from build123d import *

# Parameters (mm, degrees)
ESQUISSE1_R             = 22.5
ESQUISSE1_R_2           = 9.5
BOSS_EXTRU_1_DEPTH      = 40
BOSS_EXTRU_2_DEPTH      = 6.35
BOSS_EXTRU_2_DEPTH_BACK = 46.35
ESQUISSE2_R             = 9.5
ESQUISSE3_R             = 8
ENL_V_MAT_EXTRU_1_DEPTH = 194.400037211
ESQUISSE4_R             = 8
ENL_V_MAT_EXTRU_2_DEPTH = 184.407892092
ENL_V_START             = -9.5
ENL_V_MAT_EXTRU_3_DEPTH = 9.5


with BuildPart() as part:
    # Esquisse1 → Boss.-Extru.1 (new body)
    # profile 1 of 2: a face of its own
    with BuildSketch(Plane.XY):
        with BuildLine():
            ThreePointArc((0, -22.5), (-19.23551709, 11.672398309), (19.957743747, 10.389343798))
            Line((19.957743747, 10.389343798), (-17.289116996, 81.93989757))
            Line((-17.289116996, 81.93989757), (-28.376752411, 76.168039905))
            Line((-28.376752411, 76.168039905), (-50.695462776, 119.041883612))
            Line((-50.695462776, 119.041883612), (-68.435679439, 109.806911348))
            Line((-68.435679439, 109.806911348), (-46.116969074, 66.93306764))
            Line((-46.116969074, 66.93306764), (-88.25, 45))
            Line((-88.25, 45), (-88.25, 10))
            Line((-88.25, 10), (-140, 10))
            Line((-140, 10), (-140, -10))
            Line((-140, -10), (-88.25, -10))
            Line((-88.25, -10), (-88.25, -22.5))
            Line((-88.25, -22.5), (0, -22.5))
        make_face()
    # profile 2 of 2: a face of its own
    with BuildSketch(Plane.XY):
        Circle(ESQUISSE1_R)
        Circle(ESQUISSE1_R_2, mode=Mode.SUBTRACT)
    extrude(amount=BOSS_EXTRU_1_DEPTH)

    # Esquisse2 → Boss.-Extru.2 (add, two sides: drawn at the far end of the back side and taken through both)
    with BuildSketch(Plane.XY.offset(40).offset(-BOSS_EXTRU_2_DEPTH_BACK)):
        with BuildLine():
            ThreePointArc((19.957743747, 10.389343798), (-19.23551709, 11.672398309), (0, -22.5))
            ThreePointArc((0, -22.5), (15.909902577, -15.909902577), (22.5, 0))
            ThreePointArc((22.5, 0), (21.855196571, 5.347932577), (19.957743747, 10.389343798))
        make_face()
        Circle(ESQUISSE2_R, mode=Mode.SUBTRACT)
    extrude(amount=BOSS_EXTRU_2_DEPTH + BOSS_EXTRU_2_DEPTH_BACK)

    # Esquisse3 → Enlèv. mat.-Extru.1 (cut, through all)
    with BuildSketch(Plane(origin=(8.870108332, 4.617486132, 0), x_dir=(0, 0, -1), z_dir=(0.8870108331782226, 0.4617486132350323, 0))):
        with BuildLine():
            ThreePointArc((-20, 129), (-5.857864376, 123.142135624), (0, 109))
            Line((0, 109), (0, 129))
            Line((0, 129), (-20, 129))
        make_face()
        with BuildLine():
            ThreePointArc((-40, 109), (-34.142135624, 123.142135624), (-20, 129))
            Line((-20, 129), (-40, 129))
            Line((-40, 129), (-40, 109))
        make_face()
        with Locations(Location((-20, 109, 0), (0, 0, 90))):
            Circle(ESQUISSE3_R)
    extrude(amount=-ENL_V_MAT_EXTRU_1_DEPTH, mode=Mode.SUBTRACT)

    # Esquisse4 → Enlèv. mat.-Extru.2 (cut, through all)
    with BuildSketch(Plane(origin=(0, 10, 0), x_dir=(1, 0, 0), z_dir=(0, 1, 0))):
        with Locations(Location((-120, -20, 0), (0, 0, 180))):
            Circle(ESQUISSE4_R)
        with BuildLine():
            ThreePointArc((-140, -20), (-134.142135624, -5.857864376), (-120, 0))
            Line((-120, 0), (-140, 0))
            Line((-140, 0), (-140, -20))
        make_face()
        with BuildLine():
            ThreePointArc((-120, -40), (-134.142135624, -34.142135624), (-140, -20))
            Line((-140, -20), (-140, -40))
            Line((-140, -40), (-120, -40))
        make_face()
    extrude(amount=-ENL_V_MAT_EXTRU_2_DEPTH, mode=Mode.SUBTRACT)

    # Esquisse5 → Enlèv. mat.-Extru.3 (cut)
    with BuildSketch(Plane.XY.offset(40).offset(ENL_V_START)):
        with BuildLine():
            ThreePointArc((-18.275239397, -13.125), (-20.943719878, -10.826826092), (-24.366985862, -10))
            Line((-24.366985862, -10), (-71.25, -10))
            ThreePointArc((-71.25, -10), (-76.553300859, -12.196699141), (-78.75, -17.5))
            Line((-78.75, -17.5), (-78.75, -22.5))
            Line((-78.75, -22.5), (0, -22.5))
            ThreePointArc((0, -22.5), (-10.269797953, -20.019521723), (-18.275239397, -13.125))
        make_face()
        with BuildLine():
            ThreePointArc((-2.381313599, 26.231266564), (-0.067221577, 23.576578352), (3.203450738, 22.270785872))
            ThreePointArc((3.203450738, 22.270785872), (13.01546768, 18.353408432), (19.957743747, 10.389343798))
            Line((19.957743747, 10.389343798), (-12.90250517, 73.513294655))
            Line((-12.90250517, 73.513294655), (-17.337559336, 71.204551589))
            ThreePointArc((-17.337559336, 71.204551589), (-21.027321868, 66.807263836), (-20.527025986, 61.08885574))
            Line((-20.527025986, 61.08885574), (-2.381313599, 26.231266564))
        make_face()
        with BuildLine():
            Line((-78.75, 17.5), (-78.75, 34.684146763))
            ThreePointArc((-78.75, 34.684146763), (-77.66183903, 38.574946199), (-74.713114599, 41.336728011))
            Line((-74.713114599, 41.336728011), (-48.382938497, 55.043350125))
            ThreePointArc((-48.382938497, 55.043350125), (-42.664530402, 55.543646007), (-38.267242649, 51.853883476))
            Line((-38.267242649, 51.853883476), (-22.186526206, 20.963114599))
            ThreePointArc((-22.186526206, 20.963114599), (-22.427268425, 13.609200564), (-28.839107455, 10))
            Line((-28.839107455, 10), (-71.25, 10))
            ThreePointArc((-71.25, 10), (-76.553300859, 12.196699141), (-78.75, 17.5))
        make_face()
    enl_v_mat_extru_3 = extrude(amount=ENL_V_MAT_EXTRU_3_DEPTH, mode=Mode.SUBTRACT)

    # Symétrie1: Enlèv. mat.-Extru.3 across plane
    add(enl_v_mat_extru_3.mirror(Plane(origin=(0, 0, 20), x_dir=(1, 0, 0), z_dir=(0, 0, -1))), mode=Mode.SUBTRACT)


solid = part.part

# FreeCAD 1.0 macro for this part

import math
import FreeCAD as App
import Part
import Sketcher
from FreeCAD import Vector
Q = App.Units.Quantity

doc = App.newDocument("Part")
body = doc.addObject("PartDesign::Body", "Body")

# Sketch on XY plane
sketch1 = doc.addObject("Sketcher::SketchObject", "Sketch")
body.addObject(sketch1)
sketch1.AttachmentSupport = (doc.XY_Plane, [""])
sketch1.MapMode = "FlatFace"
sketch1.addGeometry([
    Part.LineSegment(Vector(20, 10, 0), Vector(-17, 82, 0)),  # 0
    Part.LineSegment(Vector(-17, 82, 0), Vector(-28, 76, 0)),  # 1
    Part.LineSegment(Vector(-28, 76, 0), Vector(-51, 119, 0)),  # 2
    Part.LineSegment(Vector(-51, 119, 0), Vector(-68, 110, 0)),  # 3
    Part.LineSegment(Vector(-68, 110, 0), Vector(-46, 67, 0)),  # 4
    Part.LineSegment(Vector(-46, 67, 0), Vector(-88, 45, 0)),  # 5
    Part.LineSegment(Vector(-88, 45, 0), Vector(-88, 10, 0)),  # 6
    Part.LineSegment(Vector(-88, 10, 0), Vector(-140, 10, 0)),  # 7
    Part.LineSegment(Vector(-140, 10, 0), Vector(-140, -10, 0)),  # 8
    Part.LineSegment(Vector(-140, -10, 0), Vector(-88, -10, 0)),  # 9
    Part.LineSegment(Vector(-88, -10, 0), Vector(-88, -22, 0)),  # 10
    Part.LineSegment(Vector(-88, -22, 0), Vector(0, -22, 0)),  # 11
    Part.ArcOfCircle(Part.Circle(Vector(0, 0, 0), Vector(0, 0, 1), 22), math.radians(-90), math.radians(27)),  # 12
    Part.Circle(Vector(0, 0, 0), Vector(0, 0, 1), 10),  # 13
], False)
sketch1.addConstraint([
    Sketcher.Constraint("Coincident", 0, 2, 1, 1),
    Sketcher.Constraint("Coincident", 1, 2, 2, 1),
    Sketcher.Constraint("Coincident", 2, 2, 3, 1),
    Sketcher.Constraint("Coincident", 3, 2, 4, 1),
    Sketcher.Constraint("Coincident", 4, 2, 5, 1),
    Sketcher.Constraint("Coincident", 5, 2, 6, 1),
    Sketcher.Constraint("Coincident", 6, 2, 7, 1),
    Sketcher.Constraint("Coincident", 7, 2, 8, 1),
    Sketcher.Constraint("Coincident", 8, 2, 9, 1),
    Sketcher.Constraint("Coincident", 9, 2, 10, 1),
    Sketcher.Constraint("Coincident", 10, 2, 11, 1),
    Sketcher.Constraint("Tangent", 11, 2, 12, 1),
    Sketcher.Constraint("Tangent", 12, 2, 0, 1),
    Sketcher.Constraint("Vertical", 6),
    Sketcher.Constraint("Horizontal", 7),
    Sketcher.Constraint("Vertical", 8),
    Sketcher.Constraint("Horizontal", 9),
    Sketcher.Constraint("Vertical", 10),
    Sketcher.Constraint("Horizontal", 11),
    Sketcher.Constraint("Coincident", 12, 3, -1, 1),
    Sketcher.Constraint("Coincident", 13, 3, -1, 1),
    Sketcher.Constraint("Symmetric", 6, 2, 9, 2, -1),
    Sketcher.Constraint("Perpendicular", 0, 1),
    Sketcher.Constraint("Perpendicular", 1, 2),
    Sketcher.Constraint("Perpendicular", 2, 3),
    Sketcher.Constraint("Perpendicular", 3, 4),
    Sketcher.Constraint("Perpendicular", 4, 5),
    Sketcher.Constraint("Equal", 2, 4),
    Sketcher.Constraint("Diameter", 13, 19.0),
    Sketcher.Constraint("Radius", 12, 22.5),
    Sketcher.Constraint("DistanceY", 6, 2, 6, 1, 35.0),
    Sketcher.Constraint("DistanceY", 8, 2, 8, 1, 20.0),
    Sketcher.Constraint("Distance", 3, 20.0),
    Sketcher.Constraint("DistanceX", 7, 2, -1, 1, 140.0),
    Sketcher.Constraint("Angle", 0, Q("117.5 deg")),
    Sketcher.Constraint("Distance", 1, 12.5),
    Sketcher.Constraint("DistanceX", 7, 2, 7, 1, 51.75),
    Sketcher.Constraint("DistanceX", 3, 2, -1, 1, 68.435679),
])
pad1 = doc.addObject("PartDesign::Pad", "Pad")
body.addObject(pad1)
pad1.Profile = sketch1
pad1.Length = 40

# Sketch on XY plane
sketch2 = doc.addObject("Sketcher::SketchObject", "Sketch001")
body.addObject(sketch2)
sketch2.AttachmentSupport = (doc.XY_Plane, [""])
sketch2.MapMode = "FlatFace"
sketch2.AttachmentOffset = App.Placement(Vector(0, 0, 40), App.Rotation())
sketch2.addGeometry([
    Part.ArcOfCircle(Part.Circle(Vector(0, 0, 0), Vector(0, 0, 1), 22), math.radians(27), math.radians(270)),
    Part.ArcOfCircle(Part.Circle(Vector(0, 0, 0), Vector(0, 0, 1), 22), math.radians(-90), math.radians(0)),
    Part.ArcOfCircle(Part.Circle(Vector(0, 0, 0), Vector(0, 0, 1), 23), math.radians(0), math.radians(27)),
    Part.Circle(Vector(0, 0, 0), Vector(0, 0, 1), 10),
], False)
sketch2.addConstraint([
    Sketcher.Constraint("Tangent", 0, 2, 1, 1),
    Sketcher.Constraint("Tangent", 1, 2, 2, 1),
    Sketcher.Constraint("Tangent", 2, 2, 0, 1),
    Sketcher.Constraint("Coincident", 0, 3, -1, 1),
    Sketcher.Constraint("Coincident", 3, 3, -1, 1),
    Sketcher.Constraint("PointOnObject", 0, 2, -2),
    Sketcher.Constraint("PointOnObject", 1, 2, -1),
    Sketcher.Constraint("Diameter", 3, 19.0),
    Sketcher.Constraint("Radius", 0, 22.5),
    Sketcher.Constraint("DistanceX", -1, 1, 2, 2, 19.957744),
])
pad2 = doc.addObject("PartDesign::Pad", "Pad001")
body.addObject(pad2)
pad2.Profile = sketch2
pad2.Type = "TwoLengths"
pad2.Length = 6.35
pad2.Length2 = 46.35

# Sketch on an angled plane
sketch3 = doc.addObject("Sketcher::SketchObject", "Sketch002")
body.addObject(sketch3)
sketch3.Placement = App.Placement(Vector(8.870108, 4.617486, 0), App.Rotation(Vector(0, 0, -1), Vector(-0.461748613, 0.887010833, 0), Vector(0.887010833, 0.461748613, 0), "ZXY"))
sketch3.addGeometry([
    Part.ArcOfCircle(Part.Circle(Vector(-20, 109, 0), Vector(0, 0, 1), 20), math.radians(0), math.radians(90)),  # 0
    Part.LineSegment(Vector(0, 109, 0), Vector(0, 129, 0)),  # 1
    Part.LineSegment(Vector(0, 129, 0), Vector(-20, 129, 0)),  # 2
    Part.ArcOfCircle(Part.Circle(Vector(-20, 109, 0), Vector(0, 0, 1), 20), math.radians(90), math.radians(180)),  # 3
    Part.LineSegment(Vector(-20, 129, 0), Vector(-40, 129, 0)),  # 4
    Part.LineSegment(Vector(-40, 129, 0), Vector(-40, 109, 0)),  # 5
    Part.Circle(Vector(-20, 109, 0), Vector(0, 0, 1), 8),  # 6
], False)
sketch3.addConstraint([
    Sketcher.Constraint("Tangent", 0, 1, 1, 1),
    Sketcher.Constraint("Coincident", 1, 2, 2, 1),
    Sketcher.Constraint("Tangent", 2, 2, 0, 2),
    Sketcher.Constraint("Tangent", 3, 1, 4, 1),
    Sketcher.Constraint("Coincident", 4, 2, 5, 1),
    Sketcher.Constraint("Tangent", 5, 2, 3, 2),
    Sketcher.Constraint("Vertical", 1),
    Sketcher.Constraint("Horizontal", 2),
    Sketcher.Constraint("Horizontal", 4),
    Sketcher.Constraint("Vertical", 5),
    Sketcher.Constraint("Coincident", 3, 3, 0, 3),
    Sketcher.Constraint("Coincident", 6, 3, 0, 3),
    Sketcher.Constraint("Equal", 0, 3),
    Sketcher.Constraint("PointOnObject", 0, 1, -2),
    Sketcher.Constraint("Diameter", 6, 16.0),
    Sketcher.Constraint("Radius", 0, 20.0),
    Sketcher.Constraint("DistanceY", -1, 1, 0, 3, 109.0),
])
pocket1 = doc.addObject("PartDesign::Pocket", "Pocket")
body.addObject(pocket1)
pocket1.Profile = sketch3
pocket1.Type = "ThroughAll"

# Sketch on XZ plane
sketch4 = doc.addObject("Sketcher::SketchObject", "Sketch003")
body.addObject(sketch4)
sketch4.AttachmentSupport = (doc.XZ_Plane, [""])
sketch4.MapMode = "FlatFace"
sketch4.AttachmentOffset = App.Placement(Vector(0, 0, -10), App.Rotation())
sketch4.addGeometry([
    Part.Circle(Vector(-120, 20, 0), Vector(0, 0, 1), 8),  # 0
    Part.ArcOfCircle(Part.Circle(Vector(-120, 20, 0), Vector(0, 0, 1), 20), math.radians(180), math.radians(270)),  # 1
    Part.LineSegment(Vector(-120, 0, 0), Vector(-140, 0, 0)),  # 2
    Part.LineSegment(Vector(-140, 0, 0), Vector(-140, 20, 0)),  # 3
    Part.ArcOfCircle(Part.Circle(Vector(-120, 20, 0), Vector(0, 0, 1), 20), math.radians(90), math.radians(180)),  # 4
    Part.LineSegment(Vector(-140, 20, 0), Vector(-140, 40, 0)),  # 5
    Part.LineSegment(Vector(-140, 40, 0), Vector(-120, 40, 0)),  # 6
], False)
sketch4.addConstraint([
    Sketcher.Constraint("Tangent", 1, 2, 2, 1),
    Sketcher.Constraint("Coincident", 2, 2, 3, 1),
    Sketcher.Constraint("Tangent", 3, 2, 1, 1),
    Sketcher.Constraint("Tangent", 4, 2, 5, 1),
    Sketcher.Constraint("Coincident", 5, 2, 6, 1),
    Sketcher.Constraint("Tangent", 6, 2, 4, 1),
    Sketcher.Constraint("Horizontal", 2),
    Sketcher.Constraint("Vertical", 3),
    Sketcher.Constraint("Vertical", 5),
    Sketcher.Constraint("Horizontal", 6),
    Sketcher.Constraint("Coincident", 1, 3, 0, 3),
    Sketcher.Constraint("Coincident", 4, 3, 0, 3),
    Sketcher.Constraint("Equal", 1, 4),
    Sketcher.Constraint("PointOnObject", 1, 2, -1),
    Sketcher.Constraint("Diameter", 0, 16.0),
    Sketcher.Constraint("Radius", 1, 20.0),
    Sketcher.Constraint("DistanceX", 0, 3, -1, 1, 120.0),
])
pocket2 = doc.addObject("PartDesign::Pocket", "Pocket001")
body.addObject(pocket2)
pocket2.Profile = sketch4
pocket2.Type = "ThroughAll"
pocket2.Reversed = True

# Sketch on XY plane
sketch5 = doc.addObject("Sketcher::SketchObject", "Sketch004")
body.addObject(sketch5)
sketch5.AttachmentSupport = (doc.XY_Plane, [""])
sketch5.MapMode = "FlatFace"
sketch5.AttachmentOffset = App.Placement(Vector(0, 0, 30.5), App.Rotation())
sketch5.addGeometry([
    Part.ArcOfCircle(Part.Circle(Vector(-24, -17, 0), Vector(0, 0, 1), 7), math.radians(36), math.radians(90)),  # 0
    Part.LineSegment(Vector(-24, -10, 0), Vector(-71, -10, 0)),  # 1
    Part.ArcOfCircle(Part.Circle(Vector(-71, -18, 0), Vector(0, 0, 1), 8), math.radians(90), math.radians(180)),  # 2
    Part.LineSegment(Vector(-79, -18, 0), Vector(-79, -22, 0)),  # 3
    Part.LineSegment(Vector(-79, -22, 0), Vector(0, -22, 0)),  # 4
    Part.ArcOfCircle(Part.Circle(Vector(0, 0, 0), Vector(0, 0, 1), 22), math.radians(-144), math.radians(-90)),  # 5
    Part.ArcOfCircle(Part.Circle(Vector(4, 30, 0), Vector(0, 0, 1), 7), math.radians(-153), math.radians(-98)),  # 6
    Part.ArcOfCircle(Part.Circle(Vector(0, 0, 0), Vector(0, 0, 1), 23), math.radians(28), math.radians(82)),  # 7
    Part.LineSegment(Vector(20, 10, 0), Vector(-13, 74, 0)),  # 8
    Part.LineSegment(Vector(-13, 74, 0), Vector(-17, 71, 0)),  # 9
    Part.ArcOfCircle(Part.Circle(Vector(-14, 65, 0), Vector(0, 0, 1), 8), math.radians(117), math.radians(208)),  # 10
    Part.LineSegment(Vector(-21, 61, 0), Vector(-2, 26, 0)),  # 11
    Part.LineSegment(Vector(-79, 35, 0), Vector(-79, 18, 0)),  # 12
    Part.ArcOfCircle(Part.Circle(Vector(-71, 18, 0), Vector(0, 0, 1), 8), math.radians(180), math.radians(270)),  # 13
    Part.LineSegment(Vector(-71, 10, 0), Vector(-29, 10, 0)),  # 14
    Part.ArcOfCircle(Part.Circle(Vector(-29, 18, 0), Vector(0, 0, 1), 8), math.radians(-90), math.radians(27)),  # 15
    Part.LineSegment(Vector(-22, 21, 0), Vector(-38, 52, 0)),  # 16
    Part.ArcOfCircle(Part.Circle(Vector(-45, 48, 0), Vector(0, 0, 1), 8), math.radians(28), math.radians(117)),  # 17
    Part.LineSegment(Vector(-48, 55, 0), Vector(-75, 41, 0)),  # 18
    Part.ArcOfCircle(Part.Circle(Vector(-71, 35, 0), Vector(0, 0, 1), 7), math.radians(117), math.radians(180)),  # 19
], False)
sketch5.addConstraint([
    Sketcher.Constraint("Tangent", 0, 2, 1, 1),
    Sketcher.Constraint("Tangent", 1, 2, 2, 1),
    Sketcher.Constraint("Tangent", 2, 2, 3, 1),
    Sketcher.Constraint("Coincident", 3, 2, 4, 1),
    Sketcher.Constraint("Tangent", 4, 2, 5, 2),
    Sketcher.Constraint("Tangent", 5, 1, 0, 1),
    Sketcher.Constraint("Tangent", 6, 2, 7, 2),
    Sketcher.Constraint("Tangent", 7, 1, 8, 1),
    Sketcher.Constraint("Coincident", 8, 2, 9, 1),
    Sketcher.Constraint("Tangent", 9, 2, 10, 1),
    Sketcher.Constraint("Tangent", 10, 2, 11, 1),
    Sketcher.Constraint("Tangent", 11, 2, 6, 1),
    Sketcher.Constraint("Tangent", 12, 2, 13, 1),
    Sketcher.Constraint("Tangent", 13, 2, 14, 1),
    Sketcher.Constraint("Tangent", 14, 2, 15, 1),
    Sketcher.Constraint("Tangent", 15, 2, 16, 1),
    Sketcher.Constraint("Tangent", 16, 2, 17, 1),
    Sketcher.Constraint("Tangent", 17, 2, 18, 1),
    Sketcher.Constraint("Tangent", 18, 2, 19, 1),
    Sketcher.Constraint("Tangent", 19, 2, 12, 1),
    Sketcher.Constraint("Horizontal", 1),
    Sketcher.Constraint("Vertical", 3),
    Sketcher.Constraint("Horizontal", 4),
    Sketcher.Constraint("Vertical", 12),
    Sketcher.Constraint("Horizontal", 14),
    Sketcher.Constraint("Coincident", 5, 3, -1, 1),
    Sketcher.Constraint("Coincident", 7, 3, -1, 1),
    Sketcher.Constraint("Equal", 0, 2),
    Sketcher.Constraint("Equal", 2, 6),
    Sketcher.Constraint("Equal", 5, 7),
    Sketcher.Constraint("Equal", 6, 10),
    Sketcher.Constraint("Equal", 10, 13),
    Sketcher.Constraint("Equal", 13, 15),
    Sketcher.Constraint("Equal", 15, 17),
    Sketcher.Constraint("Equal", 17, 19),
    Sketcher.Constraint("Symmetric", 2, 3, 13, 3, -1),
    Sketcher.Constraint("Perpendicular", 8, 9),
    Sketcher.Constraint("Perpendicular", 9, 11),
    Sketcher.Constraint("Parallel", 11, 16),
    Sketcher.Constraint("Perpendicular", 16, 18),
    Sketcher.Constraint("Radius", 0, 7.5),
    Sketcher.Constraint("Radius", 5, 22.5),
    Sketcher.Constraint("DistanceY", 3, 2, 3, 1, 5.0),
    Sketcher.Constraint("Distance", 9, 5.0),
    Sketcher.Constraint("Angle", 8, Q("117.5 deg")),
    Sketcher.Constraint("DistanceX", 4, 1, 4, 2, 78.75),
    Sketcher.Constraint("DistanceY", 17, 3, 10, 3, 16.161201),
    Sketcher.Constraint("DistanceX", 14, 1, 14, 2, 42.410893),
    Sketcher.Constraint("DistanceY", 12, 2, 12, 1, 17.184147),
])
pocket3 = doc.addObject("PartDesign::Pocket", "Pocket002")
body.addObject(pocket3)
pocket3.Profile = sketch5
pocket3.Length = 9.5
pocket3.Reversed = True
doc.recompute()

datumplane = doc.addObject("PartDesign::Plane", "DatumPlane")
body.addObject(datumplane)
datumplane.AttachmentSupport = (doc.XY_Plane, [""])
datumplane.MapMode = "FlatFace"
datumplane.AttachmentOffset = App.Placement(Vector(0, 0, 20), App.Rotation())
mirrored = doc.addObject("PartDesign::Mirrored", "Mirrored")
body.addObject(mirrored)
mirrored.Originals = [pocket3]
mirrored.MirrorPlane = (datumplane, [""])
body.Tip = mirrored

doc.recompute()
